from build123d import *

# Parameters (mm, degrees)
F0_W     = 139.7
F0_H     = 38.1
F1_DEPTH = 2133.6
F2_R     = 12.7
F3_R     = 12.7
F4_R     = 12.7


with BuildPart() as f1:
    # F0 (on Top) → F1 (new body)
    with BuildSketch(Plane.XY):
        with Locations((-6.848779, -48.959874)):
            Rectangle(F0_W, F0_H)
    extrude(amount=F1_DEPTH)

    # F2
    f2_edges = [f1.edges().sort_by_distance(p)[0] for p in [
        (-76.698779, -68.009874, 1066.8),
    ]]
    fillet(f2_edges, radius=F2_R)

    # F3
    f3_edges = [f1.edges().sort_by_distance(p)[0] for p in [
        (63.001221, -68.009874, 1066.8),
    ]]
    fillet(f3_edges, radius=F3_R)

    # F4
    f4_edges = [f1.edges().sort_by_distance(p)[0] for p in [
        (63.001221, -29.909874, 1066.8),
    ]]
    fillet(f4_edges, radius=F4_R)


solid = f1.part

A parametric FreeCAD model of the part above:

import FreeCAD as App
import Part
import Sketcher
from FreeCAD import Vector
Q = App.Units.Quantity


def edges_at(feature, points):
    """Names of the edges that pass closest to the given points."""
    edges = feature.Shape.Edges
    near = lambda p: min(range(len(edges)), key=lambda i: edges[i].distToShape(Part.Vertex(*p))[0])
    return sorted({f"Edge{near(p) + 1}" for p in points})

doc = App.newDocument("Part")
body = doc.addObject("PartDesign::Body", "Body")

# Sketch on XY plane
sketch1 = body.newObject("Sketcher::SketchObject", "Sketch")
sketch1.AttachmentSupport = (doc.getObject("XY_Plane"), [""])
sketch1.MapMode = "FlatFace"
sketch1.addGeometry([
    Part.LineSegment(Vector(-76.698779, -29.909874, 0), Vector(-76.698779, -68.009874, 0)),
    Part.LineSegment(Vector(-76.698779, -68.009874, 0), Vector(63.001221, -68.009874, 0)),
    Part.LineSegment(Vector(63.001221, -68.009874, 0), Vector(63.001221, -29.909874, 0)),
    Part.LineSegment(Vector(63.001221, -29.909874, 0), Vector(-76.698779, -29.909874, 0)),
], False)
sketch1.addConstraint([
    Sketcher.Constraint("Coincident", 0, 2, 1, 1),
    Sketcher.Constraint("Coincident", 1, 2, 2, 1),
    Sketcher.Constraint("Coincident", 2, 2, 3, 1),
    Sketcher.Constraint("Coincident", 3, 2, 0, 1),
    Sketcher.Constraint("Vertical", 0),
    Sketcher.Constraint("Horizontal", 1),
    Sketcher.Constraint("Vertical", 2),
    Sketcher.Constraint("Horizontal", 3),
    Sketcher.Constraint("DistanceX", 1, 1, 1, 2, Q("5.5 in")),
    Sketcher.Constraint("DistanceY", 0, 2, 0, 1, Q("1.5 in")),
    Sketcher.Constraint("DistanceX", 0, 2, -1, 1, Q("76.698779 mm")),
    Sketcher.Constraint("DistanceY", 0, 2, -1, 1, Q("68.009874 mm")),
])
pad1 = body.newObject("PartDesign::Pad", "Pad")
pad1.Profile = sketch1
pad1.Length = Q("84 in")
doc.recompute()

fillet = body.newObject("PartDesign::Fillet", "Fillet")
fillet.Base = (pad1, edges_at(pad1, [(-76.699, -68.01, 1066.8)]))
fillet.Radius = Q("0.5 in")
doc.recompute()

fillet2 = body.newObject("PartDesign::Fillet", "Fillet001")
fillet2.Base = (fillet, edges_at(fillet, [(63.001, -68.01, 1066.8)]))
fillet2.Radius = Q("0.5 in")
doc.recompute()

fillet3 = body.newObject("PartDesign::Fillet", "Fillet002")
fillet3.Base = (fillet2, edges_at(fillet2, [(63.001, -29.91, 1066.8)]))
fillet3.Radius = Q("0.5 in")

doc.recompute()
